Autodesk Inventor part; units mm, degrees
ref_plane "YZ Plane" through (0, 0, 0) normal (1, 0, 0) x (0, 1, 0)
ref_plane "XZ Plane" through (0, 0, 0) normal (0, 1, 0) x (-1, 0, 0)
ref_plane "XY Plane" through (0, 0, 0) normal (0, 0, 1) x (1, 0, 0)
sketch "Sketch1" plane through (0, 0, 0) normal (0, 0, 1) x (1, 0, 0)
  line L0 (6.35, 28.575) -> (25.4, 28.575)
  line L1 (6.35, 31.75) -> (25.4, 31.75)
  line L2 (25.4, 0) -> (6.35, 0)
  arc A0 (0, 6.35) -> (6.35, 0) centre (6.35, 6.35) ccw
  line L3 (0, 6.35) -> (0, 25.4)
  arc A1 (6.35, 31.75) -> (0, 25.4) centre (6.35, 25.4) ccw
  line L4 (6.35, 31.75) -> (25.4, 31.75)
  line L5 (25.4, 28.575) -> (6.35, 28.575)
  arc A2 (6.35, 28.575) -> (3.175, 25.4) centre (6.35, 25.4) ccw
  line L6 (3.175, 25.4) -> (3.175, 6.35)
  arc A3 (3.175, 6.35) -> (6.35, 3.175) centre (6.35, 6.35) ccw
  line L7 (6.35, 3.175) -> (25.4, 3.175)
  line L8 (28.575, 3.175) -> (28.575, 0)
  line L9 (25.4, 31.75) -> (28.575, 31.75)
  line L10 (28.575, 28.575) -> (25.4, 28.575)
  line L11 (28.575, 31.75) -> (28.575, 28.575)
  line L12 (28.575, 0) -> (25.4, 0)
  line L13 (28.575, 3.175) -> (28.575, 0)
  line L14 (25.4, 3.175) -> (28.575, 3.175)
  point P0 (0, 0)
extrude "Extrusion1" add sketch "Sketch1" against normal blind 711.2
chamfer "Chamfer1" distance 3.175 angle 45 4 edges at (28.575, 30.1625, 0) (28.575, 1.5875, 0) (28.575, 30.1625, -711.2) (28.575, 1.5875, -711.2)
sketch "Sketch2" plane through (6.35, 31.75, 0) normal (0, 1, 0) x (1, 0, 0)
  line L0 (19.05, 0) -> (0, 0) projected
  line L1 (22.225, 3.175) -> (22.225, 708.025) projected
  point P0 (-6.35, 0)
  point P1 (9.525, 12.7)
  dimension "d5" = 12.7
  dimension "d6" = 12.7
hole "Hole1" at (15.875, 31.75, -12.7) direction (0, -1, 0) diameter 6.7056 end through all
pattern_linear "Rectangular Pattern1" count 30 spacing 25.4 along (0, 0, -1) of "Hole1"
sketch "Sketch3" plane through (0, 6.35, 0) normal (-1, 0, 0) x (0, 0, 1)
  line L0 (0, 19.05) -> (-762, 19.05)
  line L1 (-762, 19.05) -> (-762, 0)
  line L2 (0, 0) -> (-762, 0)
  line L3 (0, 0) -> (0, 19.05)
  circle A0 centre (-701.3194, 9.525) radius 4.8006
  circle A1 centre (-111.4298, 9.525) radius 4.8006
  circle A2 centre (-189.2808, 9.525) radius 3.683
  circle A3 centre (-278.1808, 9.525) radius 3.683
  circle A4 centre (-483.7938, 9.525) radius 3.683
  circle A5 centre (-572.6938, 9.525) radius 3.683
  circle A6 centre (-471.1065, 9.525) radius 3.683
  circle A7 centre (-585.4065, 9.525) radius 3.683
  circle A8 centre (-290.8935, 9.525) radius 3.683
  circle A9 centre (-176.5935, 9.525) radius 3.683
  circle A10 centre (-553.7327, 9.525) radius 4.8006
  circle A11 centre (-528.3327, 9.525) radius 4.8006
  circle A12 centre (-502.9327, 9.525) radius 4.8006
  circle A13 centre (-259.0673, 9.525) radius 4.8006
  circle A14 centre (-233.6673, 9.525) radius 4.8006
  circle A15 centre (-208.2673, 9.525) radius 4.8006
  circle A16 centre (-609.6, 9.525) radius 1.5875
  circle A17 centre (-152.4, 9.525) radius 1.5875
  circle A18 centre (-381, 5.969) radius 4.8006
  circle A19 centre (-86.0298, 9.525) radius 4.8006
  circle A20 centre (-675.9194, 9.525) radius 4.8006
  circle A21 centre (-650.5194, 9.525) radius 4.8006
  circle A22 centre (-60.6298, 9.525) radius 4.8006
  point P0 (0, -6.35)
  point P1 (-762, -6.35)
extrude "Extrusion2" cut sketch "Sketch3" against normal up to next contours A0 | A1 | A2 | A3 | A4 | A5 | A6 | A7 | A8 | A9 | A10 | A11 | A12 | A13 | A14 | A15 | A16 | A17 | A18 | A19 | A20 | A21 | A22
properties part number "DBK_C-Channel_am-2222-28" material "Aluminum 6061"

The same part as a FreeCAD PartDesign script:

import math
import FreeCAD as App
import Part
import Sketcher

V = App.Vector
Q = App.Units.Quantity


def edges_at(feature, points):
    """Names of the edges that pass closest to the given points."""
    edges = feature.Shape.Edges
    near = lambda p: min(range(len(edges)), key=lambda i: edges[i].distToShape(Part.Vertex(*p))[0])
    return sorted({f"Edge{near(p) + 1}" for p in points})

doc = App.newDocument("Part")
body = doc.addObject("PartDesign::Body", "Body")

sketch1 = body.newObject("Sketcher::SketchObject", "Sketch")
sketch1.AttachmentSupport = (doc.getObject("XY_Plane"), [""])
sketch1.MapMode = "FlatFace"
sketch1.addGeometry([
    Part.ArcOfCircle(Part.Circle(V(6.3, 25.4, 0), V(0, 0, 1), 3.2), math.radians(90), math.radians(180)),
    Part.LineSegment(V(6.3, 28.6, 0), V(28.6, 28.6, 0)),
    Part.LineSegment(V(28.6, 28.6, 0), V(28.6, 31.8, 0)),
    Part.LineSegment(V(28.6, 31.8, 0), V(6.3, 31.8, 0)),
    Part.ArcOfCircle(Part.Circle(V(6.3, 25.4, 0), V(0, 0, 1), 6.4), math.radians(90), math.radians(180)),
    Part.LineSegment(V(0, 25.4, 0), V(0, 6.3, 0)),
    Part.ArcOfCircle(Part.Circle(V(6.3, 6.3, 0), V(0, 0, 1), 6.3), math.radians(180), math.radians(270)),
    Part.LineSegment(V(6.3, 0, 0), V(28.6, 0, 0)),
    Part.LineSegment(V(28.6, 0, 0), V(28.6, 3.2, 0)),
    Part.LineSegment(V(28.6, 3.2, 0), V(6.3, 3.2, 0)),
    Part.ArcOfCircle(Part.Circle(V(6.3, 6.3, 0), V(0, 0, 1), 3.2), math.radians(180), math.radians(270)),
    Part.LineSegment(V(3.2, 6.3, 0), V(3.2, 25.4, 0)),
], False)
sketch1.addConstraint([
    Sketcher.Constraint("Tangent", 0, 1, 1, 1),
    Sketcher.Constraint("Coincident", 1, 2, 2, 1),
    Sketcher.Constraint("Coincident", 2, 2, 3, 1),
    Sketcher.Constraint("Tangent", 3, 2, 4, 1),
    Sketcher.Constraint("Tangent", 4, 2, 5, 1),
    Sketcher.Constraint("Tangent", 5, 2, 6, 1),
    Sketcher.Constraint("Tangent", 6, 2, 7, 1),
    Sketcher.Constraint("Coincident", 7, 2, 8, 1),
    Sketcher.Constraint("Coincident", 8, 2, 9, 1),
    Sketcher.Constraint("Tangent", 9, 2, 10, 2),
    Sketcher.Constraint("Tangent", 10, 1, 11, 1),
    Sketcher.Constraint("Tangent", 11, 2, 0, 2),
    Sketcher.Constraint("Horizontal", 1),
    Sketcher.Constraint("Vertical", 2),
    Sketcher.Constraint("Horizontal", 3),
    Sketcher.Constraint("Vertical", 5),
    Sketcher.Constraint("Horizontal", 7),
    Sketcher.Constraint("Vertical", 8),
    Sketcher.Constraint("Horizontal", 9),
    Sketcher.Constraint("Vertical", 11),
    Sketcher.Constraint("Coincident", 4, 3, 0, 3),
    Sketcher.Constraint("Coincident", 10, 3, 6, 3),
    Sketcher.Constraint("Equal", 4, 6),
    Sketcher.Constraint("PointOnObject", 4, 2, -2),
    Sketcher.Constraint("PointOnObject", 6, 2, -1),
    Sketcher.Constraint("Vertical", 2, 2, 7, 2),
    Sketcher.Constraint("Radius", 4, Q("0.25 in")),
    Sketcher.Constraint("DistanceY", -1, 1, 0, 3, Q("1 in")),
    Sketcher.Constraint("Radius", 0, Q("0.125 in")),
    Sketcher.Constraint("DistanceX", 1, 1, 1, 2, Q("0.875 in")),
])
pad1 = body.newObject("PartDesign::Pad", "Pad")
pad1.Profile = sketch1
pad1.Length = Q("28 in")
pad1.Reversed = True
doc.recompute()

chamfer = body.newObject("PartDesign::Chamfer", "Chamfer")
chamfer.Base = (pad1, edges_at(pad1, [
    (28.575, 30.163, 0),
    (28.575, 1.587, 0),
    (28.575, 30.163, -711.2),
    (28.575, 1.587, -711.2),
]))
chamfer.Size = Q("0.125 in")

sketch2 = body.newObject("Sketcher::SketchObject", "Sketch001")
sketch2.AttachmentSupport = (doc.getObject("XZ_Plane"), [""])
sketch2.MapMode = "FlatFace"
sketch2.AttachmentOffset = App.Placement(V(0, 0, -1.25 * 25.4), App.Rotation())
sketch2.addGeometry(Part.Circle(V(15.9, -12.7, 0), V(0, 0, 1), 3.4), False)
sketch2.addConstraint([
    Sketcher.Constraint("Diameter", 0, Q("0.264 in")),
    Sketcher.Constraint("DistanceY", 0, 3, -1, 1, Q("0.5 in")),
    Sketcher.Constraint("DistanceX", -1, 1, 0, 3, Q("0.625 in")),
])
doc.recompute()
hole = body.newObject("PartDesign::Hole", "Hole")
hole.Profile = sketch2
hole.ThreadType = "None"
hole.Diameter = Q("0.264 in")
hole.DepthType = "ThroughAll"
hole.Reversed = True
doc.recompute()

linearpattern = body.newObject("PartDesign::LinearPattern", "LinearPattern")
linearpattern.Originals = [hole]
linearpattern.Direction = (doc.getObject("Z_Axis"), [""])
linearpattern.Mode = "offset"
linearpattern.Offset = Q("1 in")
linearpattern.Occurrences = 30
linearpattern.Reversed = True
body.Tip = linearpattern

sketch3 = body.newObject("Sketcher::SketchObject", "Sketch002")
sketch3.AttachmentSupport = (doc.getObject("YZ_Plane"), [""])
sketch3.MapMode = "FlatFace"
sketch3.addGeometry([
    Part.Circle(V(15.9, -701.3, 0), V(0, 0, 1), 4.8),
    Part.Circle(V(15.9, -111.4, 0), V(0, 0, 1), 4.8),
    Part.Circle(V(15.9, -189.3, 0), V(0, 0, 1), 3.7),
    Part.Circle(V(15.9, -278.2, 0), V(0, 0, 1), 3.7),
    Part.Circle(V(15.9, -483.8, 0), V(0, 0, 1), 3.7),
    Part.Circle(V(15.9, -572.7, 0), V(0, 0, 1), 3.7),
    Part.Circle(V(15.9, -471.1, 0), V(0, 0, 1), 3.7),
    Part.Circle(V(15.9, -585.4, 0), V(0, 0, 1), 3.7),
    Part.Circle(V(15.9, -290.9, 0), V(0, 0, 1), 3.7),
    Part.Circle(V(15.9, -176.6, 0), V(0, 0, 1), 3.7),
    Part.Circle(V(15.9, -553.7, 0), V(0, 0, 1), 4.8),
    Part.Circle(V(15.9, -528.3, 0), V(0, 0, 1), 4.8),
    Part.Circle(V(15.9, -502.9, 0), V(0, 0, 1), 4.8),
    Part.Circle(V(15.9, -259.1, 0), V(0, 0, 1), 4.8),
    Part.Circle(V(15.9, -233.7, 0), V(0, 0, 1), 4.8),
    Part.Circle(V(15.9, -208.3, 0), V(0, 0, 1), 4.8),
    Part.Circle(V(15.9, -609.6, 0), V(0, 0, 1), 1.6),
    Part.Circle(V(15.9, -152.4, 0), V(0, 0, 1), 1.6),
    Part.Circle(V(12.3, -381, 0), V(0, 0, 1), 4.8),
    Part.Circle(V(15.9, -86, 0), V(0, 0, 1), 4.8),
    Part.Circle(V(15.9, -675.9, 0), V(0, 0, 1), 4.8),
    Part.Circle(V(15.9, -650.5, 0), V(0, 0, 1), 4.8),
    Part.Circle(V(15.9, -60.6, 0), V(0, 0, 1), 4.8),
], False)
sketch3.addConstraint([
    Sketcher.Constraint("Equal", 0, 1),
    Sketcher.Constraint("Equal", 2, 3),
    Sketcher.Constraint("Equal", 3, 4),
    Sketcher.Constraint("Equal", 4, 5),
    Sketcher.Constraint("Equal", 5, 6),
    Sketcher.Constraint("Equal", 6, 7),
    Sketcher.Constraint("Equal", 7, 8),
    Sketcher.Constraint("Equal", 8, 9),
    Sketcher.Constraint("Equal", 1, 10),
    Sketcher.Constraint("Equal", 10, 11),
    Sketcher.Constraint("Equal", 11, 12),
    Sketcher.Constraint("Equal", 12, 13),
    Sketcher.Constraint("Equal", 13, 14),
    Sketcher.Constraint("Equal", 14, 15),
    Sketcher.Constraint("Equal", 16, 17),
    Sketcher.Constraint("Equal", 15, 18),
    Sketcher.Constraint("Equal", 18, 19),
    Sketcher.Constraint("Equal", 19, 20),
    Sketcher.Constraint("Equal", 20, 21),
    Sketcher.Constraint("Equal", 21, 22),
    Sketcher.Constraint("Vertical", 0, 3, 1, 3),
    Sketcher.Constraint("Vertical", 1, 3, 2, 3),
    Sketcher.Constraint("Vertical", 2, 3, 3, 3),
    Sketcher.Constraint("Vertical", 3, 3, 4, 3),
    Sketcher.Constraint("Vertical", 4, 3, 5, 3),
    Sketcher.Constraint("Vertical", 5, 3, 6, 3),
    Sketcher.Constraint("Vertical", 6, 3, 7, 3),
    Sketcher.Constraint("Vertical", 7, 3, 8, 3),
    Sketcher.Constraint("Vertical", 8, 3, 9, 3),
    Sketcher.Constraint("Vertical", 9, 3, 10, 3),
    Sketcher.Constraint("Vertical", 10, 3, 11, 3),
    Sketcher.Constraint("Vertical", 11, 3, 12, 3),
    Sketcher.Constraint("Vertical", 12, 3, 13, 3),
    Sketcher.Constraint("Vertical", 13, 3, 14, 3),
    Sketcher.Constraint("Vertical", 14, 3, 15, 3),
    Sketcher.Constraint("Vertical", 15, 3, 16, 3),
    Sketcher.Constraint("Vertical", 16, 3, 17, 3),
    Sketcher.Constraint("Vertical", 17, 3, 19, 3),
    Sketcher.Constraint("Vertical", 19, 3, 20, 3),
    Sketcher.Constraint("Vertical", 20, 3, 21, 3),
    Sketcher.Constraint("Vertical", 21, 3, 22, 3),
    Sketcher.Constraint("Diameter", 2, Q("0.29 in")),
    Sketcher.Constraint("Diameter", 0, Q("0.378 in")),
    Sketcher.Constraint("Diameter", 16, Q("0.125 in")),
    Sketcher.Constraint("DistanceY", 16, 3, -1, 1, Q("24 in")),
    Sketcher.Constraint("DistanceY", 17, 3, -1, 1, Q("6 in")),
    Sketcher.Constraint("DistanceY", 18, 3, -1, 1, Q("15 in")),
    Sketcher.Constraint("DistanceY", 10, 3, 11, 3, Q("1 in")),
    Sketcher.Constraint("DistanceY", 11, 3, 12, 3, Q("1 in")),
    Sketcher.Constraint("DistanceY", 13, 3, 14, 3, Q("1 in")),
    Sketcher.Constraint("DistanceY", 14, 3, 15, 3, Q("1 in")),
    Sketcher.Constraint("DistanceY", 1, 3, 19, 3, Q("1 in")),
    Sketcher.Constraint("DistanceY", 0, 3, 20, 3, Q("1 in")),
    Sketcher.Constraint("DistanceY", 20, 3, 21, 3, Q("1 in")),
    Sketcher.Constraint("DistanceY", 19, 3, 22, 3, Q("1 in")),
    Sketcher.Constraint("DistanceY", 3, 3, 2, 3, Q("3.5 in")),
    Sketcher.Constraint("DistanceY", 5, 3, 4, 3, Q("3.5 in")),
    Sketcher.Constraint("DistanceY", 7, 3, 6, 3, Q("4.5 in")),
    Sketcher.Constraint("DistanceY", 8, 3, 9, 3, Q("4.5 in")),
    Sketcher.Constraint("DistanceY", 4, 3, 1, 3, Q("14.66 in")),
    Sketcher.Constraint("DistanceX", 18, 3, 6, 3, Q("0.14 in")),
    Sketcher.Constraint("DistanceX", -1, 1, 0, 3, Q("0.625 in")),
    Sketcher.Constraint("DistanceY", 0, 3, -1, 1, Q("27.611 in")),
    Sketcher.Constraint("DistanceY", 1, 3, -1, 1, Q("4.387 in")),
    Sketcher.Constraint("DistanceY", 2, 3, -1, 1, Q("7.452 in")),
    Sketcher.Constraint("DistanceY", 6, 3, 8, 3, Q("7.095 in")),
    Sketcher.Constraint("DistanceY", 7, 3, 10, 3, Q("1.247 in")),
    Sketcher.Constraint("DistanceY", 8, 3, 13, 3, Q("1.253 in")),
    Sketcher.Constraint("DistanceY", 13, 3, 1, 3, Q("5.8125 in")),
])
pocket1 = body.newObject("PartDesign::Pocket", "Pocket")
pocket1.Profile = sketch3
pocket1.Type = "UpToFirst"
pocket1.Reversed = True

doc.recompute()
